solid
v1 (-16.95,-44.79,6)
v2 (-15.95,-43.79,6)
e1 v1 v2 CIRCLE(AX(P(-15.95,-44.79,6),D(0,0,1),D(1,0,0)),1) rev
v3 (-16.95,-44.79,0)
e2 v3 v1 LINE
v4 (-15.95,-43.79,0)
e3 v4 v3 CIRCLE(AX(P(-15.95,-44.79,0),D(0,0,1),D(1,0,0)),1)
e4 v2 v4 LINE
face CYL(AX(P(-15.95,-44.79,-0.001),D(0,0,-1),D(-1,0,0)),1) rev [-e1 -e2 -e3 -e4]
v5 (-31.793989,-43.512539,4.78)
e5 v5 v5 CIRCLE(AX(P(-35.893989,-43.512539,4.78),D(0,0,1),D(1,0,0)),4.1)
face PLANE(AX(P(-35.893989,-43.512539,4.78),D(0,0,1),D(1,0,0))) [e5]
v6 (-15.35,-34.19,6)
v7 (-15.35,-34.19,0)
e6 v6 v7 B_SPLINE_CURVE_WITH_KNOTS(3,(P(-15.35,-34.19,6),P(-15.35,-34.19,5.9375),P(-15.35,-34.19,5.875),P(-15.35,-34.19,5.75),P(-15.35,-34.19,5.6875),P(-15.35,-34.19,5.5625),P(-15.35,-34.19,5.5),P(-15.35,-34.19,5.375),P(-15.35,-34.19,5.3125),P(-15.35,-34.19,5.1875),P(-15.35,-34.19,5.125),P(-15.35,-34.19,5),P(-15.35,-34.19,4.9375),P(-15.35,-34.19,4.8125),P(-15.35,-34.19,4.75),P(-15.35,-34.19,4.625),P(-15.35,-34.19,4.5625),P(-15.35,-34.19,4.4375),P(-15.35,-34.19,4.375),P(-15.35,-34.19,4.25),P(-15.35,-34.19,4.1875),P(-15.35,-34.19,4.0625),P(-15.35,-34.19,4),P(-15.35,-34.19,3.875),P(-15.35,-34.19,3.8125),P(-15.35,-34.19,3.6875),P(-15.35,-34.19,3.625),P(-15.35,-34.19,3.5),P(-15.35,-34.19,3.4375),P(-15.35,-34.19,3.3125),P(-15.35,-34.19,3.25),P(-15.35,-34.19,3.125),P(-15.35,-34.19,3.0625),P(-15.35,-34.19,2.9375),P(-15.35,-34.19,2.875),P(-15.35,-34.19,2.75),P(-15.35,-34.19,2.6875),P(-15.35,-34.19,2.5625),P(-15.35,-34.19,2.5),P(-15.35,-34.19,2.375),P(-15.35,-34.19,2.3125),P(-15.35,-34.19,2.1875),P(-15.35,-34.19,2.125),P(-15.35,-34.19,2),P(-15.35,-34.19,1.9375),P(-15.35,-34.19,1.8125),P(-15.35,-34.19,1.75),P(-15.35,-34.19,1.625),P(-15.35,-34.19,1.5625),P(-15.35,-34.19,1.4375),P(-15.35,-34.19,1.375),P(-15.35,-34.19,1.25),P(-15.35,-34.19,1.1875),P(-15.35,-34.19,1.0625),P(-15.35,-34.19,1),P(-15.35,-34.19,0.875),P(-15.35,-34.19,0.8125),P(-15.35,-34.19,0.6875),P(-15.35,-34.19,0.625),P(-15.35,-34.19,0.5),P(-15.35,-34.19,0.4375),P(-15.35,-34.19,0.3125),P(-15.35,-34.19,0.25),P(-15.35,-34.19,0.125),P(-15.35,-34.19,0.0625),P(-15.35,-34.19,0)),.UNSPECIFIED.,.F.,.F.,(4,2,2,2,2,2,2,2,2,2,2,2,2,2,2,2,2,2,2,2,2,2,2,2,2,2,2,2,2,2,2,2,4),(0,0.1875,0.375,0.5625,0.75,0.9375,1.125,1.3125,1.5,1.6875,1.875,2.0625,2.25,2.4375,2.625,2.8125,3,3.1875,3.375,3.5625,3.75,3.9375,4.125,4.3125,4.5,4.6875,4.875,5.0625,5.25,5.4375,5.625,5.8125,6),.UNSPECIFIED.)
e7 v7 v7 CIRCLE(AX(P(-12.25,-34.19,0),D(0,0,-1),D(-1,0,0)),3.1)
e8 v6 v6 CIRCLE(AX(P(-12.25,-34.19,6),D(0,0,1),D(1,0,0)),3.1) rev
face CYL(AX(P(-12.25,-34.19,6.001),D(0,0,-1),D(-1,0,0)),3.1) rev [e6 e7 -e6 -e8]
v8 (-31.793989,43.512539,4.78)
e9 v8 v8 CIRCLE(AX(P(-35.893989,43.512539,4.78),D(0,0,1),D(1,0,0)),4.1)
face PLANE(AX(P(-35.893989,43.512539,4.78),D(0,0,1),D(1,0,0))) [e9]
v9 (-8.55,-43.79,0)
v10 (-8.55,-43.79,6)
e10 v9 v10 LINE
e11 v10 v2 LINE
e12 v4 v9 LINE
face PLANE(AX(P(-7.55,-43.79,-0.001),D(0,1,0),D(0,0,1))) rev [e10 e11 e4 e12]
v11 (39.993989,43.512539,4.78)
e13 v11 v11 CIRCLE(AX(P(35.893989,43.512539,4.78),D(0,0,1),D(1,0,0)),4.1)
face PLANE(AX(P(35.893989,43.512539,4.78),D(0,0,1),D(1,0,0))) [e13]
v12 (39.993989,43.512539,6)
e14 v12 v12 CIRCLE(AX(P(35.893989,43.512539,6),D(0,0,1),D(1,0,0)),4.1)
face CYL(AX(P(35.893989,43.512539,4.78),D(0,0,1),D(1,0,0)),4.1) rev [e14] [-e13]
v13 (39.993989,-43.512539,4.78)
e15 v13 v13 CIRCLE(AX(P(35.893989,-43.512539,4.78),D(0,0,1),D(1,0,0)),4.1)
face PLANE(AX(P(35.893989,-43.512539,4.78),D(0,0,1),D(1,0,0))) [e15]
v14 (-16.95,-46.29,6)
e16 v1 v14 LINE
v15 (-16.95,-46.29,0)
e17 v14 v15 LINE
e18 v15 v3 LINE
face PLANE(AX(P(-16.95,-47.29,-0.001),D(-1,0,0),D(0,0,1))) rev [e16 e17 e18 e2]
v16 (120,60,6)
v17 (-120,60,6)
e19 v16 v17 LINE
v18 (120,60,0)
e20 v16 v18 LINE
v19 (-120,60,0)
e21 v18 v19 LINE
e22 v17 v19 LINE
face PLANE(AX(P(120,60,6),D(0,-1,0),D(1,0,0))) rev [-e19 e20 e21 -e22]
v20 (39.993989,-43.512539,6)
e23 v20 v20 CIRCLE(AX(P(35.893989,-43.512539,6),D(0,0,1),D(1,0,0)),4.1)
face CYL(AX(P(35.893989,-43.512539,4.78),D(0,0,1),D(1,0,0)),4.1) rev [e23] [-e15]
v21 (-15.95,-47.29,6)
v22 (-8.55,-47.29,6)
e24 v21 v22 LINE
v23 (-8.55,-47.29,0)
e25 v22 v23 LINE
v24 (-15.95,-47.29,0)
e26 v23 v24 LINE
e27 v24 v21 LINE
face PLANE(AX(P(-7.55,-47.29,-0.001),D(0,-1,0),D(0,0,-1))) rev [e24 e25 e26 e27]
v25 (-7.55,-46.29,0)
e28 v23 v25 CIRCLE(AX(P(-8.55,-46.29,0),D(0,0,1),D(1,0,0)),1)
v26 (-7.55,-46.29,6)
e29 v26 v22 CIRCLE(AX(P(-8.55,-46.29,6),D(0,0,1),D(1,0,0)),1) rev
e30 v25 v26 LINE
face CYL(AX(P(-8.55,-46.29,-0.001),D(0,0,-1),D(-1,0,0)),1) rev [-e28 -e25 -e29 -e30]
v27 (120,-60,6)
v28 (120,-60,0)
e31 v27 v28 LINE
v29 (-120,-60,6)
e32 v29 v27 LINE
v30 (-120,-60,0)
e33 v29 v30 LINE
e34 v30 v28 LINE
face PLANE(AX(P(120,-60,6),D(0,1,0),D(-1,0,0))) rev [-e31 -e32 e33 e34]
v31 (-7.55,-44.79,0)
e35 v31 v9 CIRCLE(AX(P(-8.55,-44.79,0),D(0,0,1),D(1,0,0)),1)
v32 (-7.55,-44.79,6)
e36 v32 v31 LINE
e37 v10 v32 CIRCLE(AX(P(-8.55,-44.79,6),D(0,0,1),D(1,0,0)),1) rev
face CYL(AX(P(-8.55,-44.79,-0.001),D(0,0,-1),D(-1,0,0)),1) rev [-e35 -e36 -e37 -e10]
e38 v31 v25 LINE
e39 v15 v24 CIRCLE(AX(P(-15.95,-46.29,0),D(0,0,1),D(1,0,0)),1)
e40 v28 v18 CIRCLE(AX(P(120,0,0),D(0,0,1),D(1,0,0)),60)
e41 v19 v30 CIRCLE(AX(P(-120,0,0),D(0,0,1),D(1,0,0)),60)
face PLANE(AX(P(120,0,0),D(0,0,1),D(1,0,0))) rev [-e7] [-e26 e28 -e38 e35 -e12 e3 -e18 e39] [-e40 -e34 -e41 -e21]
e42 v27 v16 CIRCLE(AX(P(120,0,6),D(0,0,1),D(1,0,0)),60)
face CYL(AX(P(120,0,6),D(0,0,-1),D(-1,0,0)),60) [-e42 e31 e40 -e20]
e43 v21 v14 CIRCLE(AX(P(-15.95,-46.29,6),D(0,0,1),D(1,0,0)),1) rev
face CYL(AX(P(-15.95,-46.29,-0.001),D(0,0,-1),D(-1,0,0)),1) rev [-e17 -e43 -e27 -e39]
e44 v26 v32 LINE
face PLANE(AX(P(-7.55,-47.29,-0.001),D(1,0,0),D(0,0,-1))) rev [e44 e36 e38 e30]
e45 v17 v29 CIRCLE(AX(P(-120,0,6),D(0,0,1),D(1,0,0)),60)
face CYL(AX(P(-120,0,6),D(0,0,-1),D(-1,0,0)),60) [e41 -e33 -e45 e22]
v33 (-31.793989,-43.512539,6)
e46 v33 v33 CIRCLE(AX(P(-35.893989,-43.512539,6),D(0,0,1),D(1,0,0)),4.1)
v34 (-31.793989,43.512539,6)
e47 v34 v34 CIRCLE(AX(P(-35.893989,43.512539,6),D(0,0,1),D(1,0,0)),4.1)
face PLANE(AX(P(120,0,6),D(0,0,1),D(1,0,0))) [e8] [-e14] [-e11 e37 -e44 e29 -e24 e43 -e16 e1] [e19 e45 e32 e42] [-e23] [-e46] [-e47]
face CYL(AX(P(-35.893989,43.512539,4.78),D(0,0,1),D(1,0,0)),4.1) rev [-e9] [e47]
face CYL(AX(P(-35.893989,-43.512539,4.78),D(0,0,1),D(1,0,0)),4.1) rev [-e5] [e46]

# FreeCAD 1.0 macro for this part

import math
import FreeCAD as App
import Part
import Sketcher


def edges_at(feature, points):
    """Names of the edges that pass closest to the given points."""
    edges = feature.Shape.Edges
    near = lambda p: min(range(len(edges)), key=lambda i: edges[i].distToShape(Part.Vertex(*p))[0])
    return sorted({f"Edge{near(p) + 1}" for p in points})

doc = App.newDocument("Part")
body = doc.addObject("PartDesign::Body", "Body")

# Sketch on XY plane
sketch1 = body.newObject("Sketcher::SketchObject", "Sketch")
sketch1.AttachmentSupport = (doc.getObject("XY_Plane"), [""])
sketch1.MapMode = "FlatFace"
sketch1.addGeometry([
    Part.LineSegment(App.Vector(-120, -60, 0), App.Vector(120, -60, 0)),
    Part.ArcOfCircle(Part.Circle(App.Vector(120, 0, 0), App.Vector(0, 0, 1), 60), math.radians(-90), math.radians(90)),
    Part.LineSegment(App.Vector(120, 60, 0), App.Vector(-120, 60, 0)),
    Part.ArcOfCircle(Part.Circle(App.Vector(-120, 0, 0), App.Vector(0, 0, 1), 60), math.radians(90), math.radians(270)),
], False)
sketch1.addConstraint([
    Sketcher.Constraint("Tangent", 0, 2, 1, 1),
    Sketcher.Constraint("Tangent", 1, 2, 2, 1),
    Sketcher.Constraint("Tangent", 2, 2, 3, 1),
    Sketcher.Constraint("Tangent", 3, 2, 0, 1),
    Sketcher.Constraint("Horizontal", 0),
    Sketcher.Constraint("Horizontal", 2),
    Sketcher.Constraint("Symmetric", 1, 3, 3, 3, -1, 1),
    Sketcher.Constraint("Radius", 1, 60.0),
    Sketcher.Constraint("DistanceX", 0, 1, 0, 2, 240.0),
])
pad1 = body.newObject("PartDesign::Pad", "Pad")
pad1.Profile = sketch1
pad1.Length = 6

# Sketch on XY plane
sketch2 = body.newObject("Sketcher::SketchObject", "Sketch001")
sketch2.AttachmentSupport = (doc.getObject("XY_Plane"), [""])
sketch2.MapMode = "FlatFace"
sketch2.AttachmentOffset = App.Placement(App.Vector(0, 0, 6), App.Rotation())
sketch2.addGeometry([
    Part.Circle(App.Vector(-35.893989, 43.512539, 0), App.Vector(0, 0, 1), 4.1),
    Part.Circle(App.Vector(35.893989, 43.512539, 0), App.Vector(0, 0, 1), 4.1),
    Part.Circle(App.Vector(35.893989, -43.512539, 0), App.Vector(0, 0, 1), 4.1),
    Part.Circle(App.Vector(-35.893989, -43.512539, 0), App.Vector(0, 0, 1), 4.1),
], False)
sketch2.addConstraint([
    Sketcher.Constraint("Equal", 0, 1),
    Sketcher.Constraint("Equal", 1, 2),
    Sketcher.Constraint("Equal", 2, 3),
    Sketcher.Constraint("Symmetric", 0, 3, 2, 3, -1, 1),
    Sketcher.Constraint("Symmetric", 1, 3, 3, 3, -1, 1),
    Sketcher.Constraint("Symmetric", 0, 3, 1, 3, -2),
    Sketcher.Constraint("Diameter", 0, 8.2),
    Sketcher.Constraint("DistanceX", 0, 3, -1, 1, 35.893989),
    Sketcher.Constraint("DistanceY", -1, 1, 0, 3, 43.512539),
])
pocket1 = body.newObject("PartDesign::Pocket", "Pocket")
pocket1.Profile = sketch2
pocket1.Length = 1.22

# Sketch on XY plane
sketch3 = body.newObject("Sketcher::SketchObject", "Sketch002")
sketch3.AttachmentSupport = (doc.getObject("XY_Plane"), [""])
sketch3.MapMode = "FlatFace"
sketch3.addGeometry(Part.Circle(App.Vector(-12.25, -34.19, 0), App.Vector(0, 0, 1), 3.1), False)
sketch3.addConstraint([
    Sketcher.Constraint("Diameter", 0, 6.2),
    Sketcher.Constraint("DistanceX", 0, 3, -1, 1, 12.25),
    Sketcher.Constraint("DistanceY", 0, 3, -1, 1, 34.19),
])
pocket2 = body.newObject("PartDesign::Pocket", "Pocket001")
pocket2.Profile = sketch3
pocket2.Type = "UpToFirst"
pocket2.Reversed = True

# Sketch on XY plane
sketch4 = body.newObject("Sketcher::SketchObject", "Sketch003")
sketch4.AttachmentSupport = (doc.getObject("XY_Plane"), [""])
sketch4.MapMode = "FlatFace"
sketch4.AttachmentOffset = App.Placement(App.Vector(0, 0, 6), App.Rotation())
sketch4.addGeometry([
    Part.LineSegment(App.Vector(-16.95, -43.79, 0), App.Vector(-16.95, -47.29, 0)),
    Part.LineSegment(App.Vector(-16.95, -47.29, 0), App.Vector(-7.55, -47.29, 0)),
    Part.LineSegment(App.Vector(-7.55, -47.29, 0), App.Vector(-7.55, -43.79, 0)),
    Part.LineSegment(App.Vector(-7.55, -43.79, 0), App.Vector(-16.95, -43.79, 0)),
], False)
sketch4.addConstraint([
    Sketcher.Constraint("Coincident", 0, 2, 1, 1),
    Sketcher.Constraint("Coincident", 1, 2, 2, 1),
    Sketcher.Constraint("Coincident", 2, 2, 3, 1),
    Sketcher.Constraint("Coincident", 3, 2, 0, 1),
    Sketcher.Constraint("Vertical", 0),
    Sketcher.Constraint("Horizontal", 1),
    Sketcher.Constraint("Vertical", 2),
    Sketcher.Constraint("Horizontal", 3),
    Sketcher.Constraint("DistanceX", 1, 1, 1, 2, 9.4),
    Sketcher.Constraint("DistanceY", 0, 2, 0, 1, 3.5),
    Sketcher.Constraint("DistanceX", 0, 2, -1, 1, 16.95),
    Sketcher.Constraint("DistanceY", 0, 2, -1, 1, 47.29),
])
pocket3 = body.newObject("PartDesign::Pocket", "Pocket002")
pocket3.Profile = sketch4
pocket3.Type = "UpToFirst"
doc.recompute()

fillet = body.newObject("PartDesign::Fillet", "Fillet")
fillet.Base = (pocket3, edges_at(pocket3, [
    (-7.55, -43.79, 3),
    (-7.55, -47.29, 3),
    (-16.95, -47.29, 3),
    (-16.95, -43.79, 3),
]))
fillet.Radius = 1

doc.recompute()
